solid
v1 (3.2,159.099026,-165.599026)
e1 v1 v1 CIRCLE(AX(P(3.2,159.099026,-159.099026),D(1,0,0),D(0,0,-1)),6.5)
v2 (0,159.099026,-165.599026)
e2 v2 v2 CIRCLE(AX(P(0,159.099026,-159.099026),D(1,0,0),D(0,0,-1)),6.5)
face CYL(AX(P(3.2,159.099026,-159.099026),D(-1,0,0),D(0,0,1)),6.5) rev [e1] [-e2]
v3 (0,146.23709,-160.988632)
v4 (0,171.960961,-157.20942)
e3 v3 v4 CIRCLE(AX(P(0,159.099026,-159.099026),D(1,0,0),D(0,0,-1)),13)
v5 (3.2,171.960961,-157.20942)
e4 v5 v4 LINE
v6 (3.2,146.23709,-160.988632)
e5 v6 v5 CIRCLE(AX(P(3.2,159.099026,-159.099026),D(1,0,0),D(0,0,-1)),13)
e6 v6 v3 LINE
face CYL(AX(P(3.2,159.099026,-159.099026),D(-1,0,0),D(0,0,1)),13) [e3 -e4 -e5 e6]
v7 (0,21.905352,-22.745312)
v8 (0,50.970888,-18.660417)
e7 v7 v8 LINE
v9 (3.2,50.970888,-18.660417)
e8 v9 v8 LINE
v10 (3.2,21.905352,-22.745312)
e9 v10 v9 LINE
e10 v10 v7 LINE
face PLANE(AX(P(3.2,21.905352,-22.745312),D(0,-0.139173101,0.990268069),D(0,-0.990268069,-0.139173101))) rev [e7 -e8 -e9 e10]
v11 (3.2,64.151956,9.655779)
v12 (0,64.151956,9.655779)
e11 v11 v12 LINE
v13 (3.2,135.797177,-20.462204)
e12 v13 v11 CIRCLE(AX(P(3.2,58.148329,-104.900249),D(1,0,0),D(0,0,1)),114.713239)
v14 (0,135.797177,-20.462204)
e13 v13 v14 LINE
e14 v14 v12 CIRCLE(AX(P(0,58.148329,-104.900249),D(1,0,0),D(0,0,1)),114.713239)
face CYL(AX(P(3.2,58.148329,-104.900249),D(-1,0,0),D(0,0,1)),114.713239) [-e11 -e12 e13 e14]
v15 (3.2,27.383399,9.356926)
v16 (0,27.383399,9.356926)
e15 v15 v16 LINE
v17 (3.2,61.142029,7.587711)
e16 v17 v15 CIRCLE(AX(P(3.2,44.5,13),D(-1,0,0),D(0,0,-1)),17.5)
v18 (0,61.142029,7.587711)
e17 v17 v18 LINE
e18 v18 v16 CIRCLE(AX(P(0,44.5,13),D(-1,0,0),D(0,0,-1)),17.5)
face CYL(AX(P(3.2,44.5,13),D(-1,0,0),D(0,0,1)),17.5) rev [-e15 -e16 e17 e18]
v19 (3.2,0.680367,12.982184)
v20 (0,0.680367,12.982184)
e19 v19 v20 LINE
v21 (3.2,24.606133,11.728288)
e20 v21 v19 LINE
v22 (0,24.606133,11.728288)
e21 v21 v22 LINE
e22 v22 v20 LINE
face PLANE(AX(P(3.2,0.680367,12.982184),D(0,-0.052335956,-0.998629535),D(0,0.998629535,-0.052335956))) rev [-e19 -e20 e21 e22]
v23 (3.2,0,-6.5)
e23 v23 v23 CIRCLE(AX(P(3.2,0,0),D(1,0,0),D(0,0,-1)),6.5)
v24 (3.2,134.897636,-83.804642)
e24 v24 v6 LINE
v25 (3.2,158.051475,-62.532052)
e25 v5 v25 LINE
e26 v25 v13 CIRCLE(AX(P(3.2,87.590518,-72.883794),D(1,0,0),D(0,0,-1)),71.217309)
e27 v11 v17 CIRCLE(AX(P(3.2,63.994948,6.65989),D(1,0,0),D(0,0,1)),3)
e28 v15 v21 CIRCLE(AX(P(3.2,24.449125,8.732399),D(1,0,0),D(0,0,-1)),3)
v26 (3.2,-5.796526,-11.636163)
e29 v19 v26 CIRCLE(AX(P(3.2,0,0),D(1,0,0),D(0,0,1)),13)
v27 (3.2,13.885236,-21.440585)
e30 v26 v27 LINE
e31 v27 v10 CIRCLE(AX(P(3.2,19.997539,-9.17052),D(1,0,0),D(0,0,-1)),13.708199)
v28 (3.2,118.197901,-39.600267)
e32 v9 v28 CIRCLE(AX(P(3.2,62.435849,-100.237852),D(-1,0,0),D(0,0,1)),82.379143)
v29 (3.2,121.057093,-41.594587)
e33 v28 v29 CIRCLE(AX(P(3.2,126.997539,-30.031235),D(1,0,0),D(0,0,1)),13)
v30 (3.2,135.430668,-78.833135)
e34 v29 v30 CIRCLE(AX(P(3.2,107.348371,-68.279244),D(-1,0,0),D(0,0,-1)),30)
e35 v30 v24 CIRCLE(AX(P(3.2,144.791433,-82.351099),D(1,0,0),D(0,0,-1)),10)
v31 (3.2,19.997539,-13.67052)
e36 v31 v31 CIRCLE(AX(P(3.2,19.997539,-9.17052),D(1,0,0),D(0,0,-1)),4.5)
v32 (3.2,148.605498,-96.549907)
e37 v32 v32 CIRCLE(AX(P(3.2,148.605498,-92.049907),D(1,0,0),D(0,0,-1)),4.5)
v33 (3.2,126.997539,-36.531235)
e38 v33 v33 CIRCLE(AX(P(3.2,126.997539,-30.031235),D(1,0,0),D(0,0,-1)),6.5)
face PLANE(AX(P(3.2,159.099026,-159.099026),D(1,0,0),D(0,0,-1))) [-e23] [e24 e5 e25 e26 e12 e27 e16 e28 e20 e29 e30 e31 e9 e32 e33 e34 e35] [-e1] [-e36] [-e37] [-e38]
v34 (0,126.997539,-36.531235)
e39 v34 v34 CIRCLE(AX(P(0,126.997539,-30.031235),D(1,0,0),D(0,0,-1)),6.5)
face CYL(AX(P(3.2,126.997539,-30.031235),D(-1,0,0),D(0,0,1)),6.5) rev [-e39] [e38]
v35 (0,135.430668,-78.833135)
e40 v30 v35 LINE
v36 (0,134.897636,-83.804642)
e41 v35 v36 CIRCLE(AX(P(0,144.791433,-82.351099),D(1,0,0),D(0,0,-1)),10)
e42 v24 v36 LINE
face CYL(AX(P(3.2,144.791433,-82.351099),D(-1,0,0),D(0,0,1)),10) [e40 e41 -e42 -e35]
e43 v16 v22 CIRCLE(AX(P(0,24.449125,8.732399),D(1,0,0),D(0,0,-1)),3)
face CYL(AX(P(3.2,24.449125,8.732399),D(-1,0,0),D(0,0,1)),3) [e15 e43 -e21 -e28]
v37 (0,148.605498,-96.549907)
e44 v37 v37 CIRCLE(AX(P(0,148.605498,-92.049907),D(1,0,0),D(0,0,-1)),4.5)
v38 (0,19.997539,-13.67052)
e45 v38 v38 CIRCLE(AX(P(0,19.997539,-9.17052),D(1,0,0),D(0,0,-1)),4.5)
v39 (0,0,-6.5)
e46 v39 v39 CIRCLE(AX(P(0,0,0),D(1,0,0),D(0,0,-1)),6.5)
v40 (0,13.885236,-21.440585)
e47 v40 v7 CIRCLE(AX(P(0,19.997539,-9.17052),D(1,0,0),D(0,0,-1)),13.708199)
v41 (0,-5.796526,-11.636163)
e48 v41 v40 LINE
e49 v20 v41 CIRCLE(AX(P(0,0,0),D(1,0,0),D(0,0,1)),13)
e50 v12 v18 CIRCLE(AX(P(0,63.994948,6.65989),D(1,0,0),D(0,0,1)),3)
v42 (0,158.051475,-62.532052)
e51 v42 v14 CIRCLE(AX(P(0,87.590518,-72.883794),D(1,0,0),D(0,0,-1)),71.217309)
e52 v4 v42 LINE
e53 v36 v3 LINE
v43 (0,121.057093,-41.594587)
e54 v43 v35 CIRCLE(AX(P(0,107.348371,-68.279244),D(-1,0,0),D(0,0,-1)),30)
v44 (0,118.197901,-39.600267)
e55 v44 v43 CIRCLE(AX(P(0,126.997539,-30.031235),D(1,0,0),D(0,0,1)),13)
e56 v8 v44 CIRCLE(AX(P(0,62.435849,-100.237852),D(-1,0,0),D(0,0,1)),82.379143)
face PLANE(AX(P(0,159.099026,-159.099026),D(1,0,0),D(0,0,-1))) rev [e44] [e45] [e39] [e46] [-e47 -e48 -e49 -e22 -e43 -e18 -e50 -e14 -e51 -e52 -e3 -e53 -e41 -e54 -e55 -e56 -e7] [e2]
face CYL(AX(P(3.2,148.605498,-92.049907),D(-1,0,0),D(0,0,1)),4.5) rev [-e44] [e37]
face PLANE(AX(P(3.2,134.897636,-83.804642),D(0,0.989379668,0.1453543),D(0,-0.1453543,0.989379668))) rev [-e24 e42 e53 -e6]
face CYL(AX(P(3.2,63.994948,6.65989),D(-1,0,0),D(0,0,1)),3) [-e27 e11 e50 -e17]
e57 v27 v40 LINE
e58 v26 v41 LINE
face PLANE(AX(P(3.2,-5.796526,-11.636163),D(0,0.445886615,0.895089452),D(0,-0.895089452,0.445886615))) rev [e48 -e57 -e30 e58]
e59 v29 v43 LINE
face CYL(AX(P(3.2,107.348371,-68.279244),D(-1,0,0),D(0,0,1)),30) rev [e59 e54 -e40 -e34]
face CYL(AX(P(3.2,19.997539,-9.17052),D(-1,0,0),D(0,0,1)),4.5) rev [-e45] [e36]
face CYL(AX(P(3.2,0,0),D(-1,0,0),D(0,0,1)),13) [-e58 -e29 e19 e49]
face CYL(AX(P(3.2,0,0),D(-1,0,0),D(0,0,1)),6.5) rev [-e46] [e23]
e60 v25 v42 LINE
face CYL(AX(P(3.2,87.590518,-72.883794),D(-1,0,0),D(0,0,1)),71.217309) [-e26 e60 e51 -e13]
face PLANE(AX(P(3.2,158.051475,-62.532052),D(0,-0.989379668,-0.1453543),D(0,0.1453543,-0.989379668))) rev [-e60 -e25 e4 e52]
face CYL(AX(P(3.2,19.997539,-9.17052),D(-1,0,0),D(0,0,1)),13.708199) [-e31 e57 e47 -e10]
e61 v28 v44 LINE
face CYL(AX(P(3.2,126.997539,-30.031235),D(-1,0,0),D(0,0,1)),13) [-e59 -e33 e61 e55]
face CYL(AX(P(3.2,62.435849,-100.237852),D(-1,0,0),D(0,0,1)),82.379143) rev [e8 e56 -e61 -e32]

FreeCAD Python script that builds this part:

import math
import FreeCAD as App
import Part
import Sketcher
from FreeCAD import Vector
Q = App.Units.Quantity

doc = App.newDocument("Part")
body = doc.addObject("PartDesign::Body", "Body")

# Sketch on YZ plane
sketch1 = body.newObject("Sketcher::SketchObject", "Sketch")
sketch1.AttachmentSupport = (doc.getObject("YZ_Plane"), [""])
sketch1.MapMode = "FlatFace"
sketch1.addGeometry(Part.LineSegment(Vector(172, -157.2, 0), Vector(158.1, -62.5, 0)), False)
sketch1.addGeometry(Part.ArcOfCircle(Part.Circle(Vector(87.6, -72.9, 0), Vector(0, 0, 1), 71.2), math.radians(8), math.radians(47)), False)
sketch1.addGeometry(Part.ArcOfCircle(Part.Circle(Vector(58.1, -104.9, 0), Vector(0, 0, 1), 114.7), math.radians(47), math.radians(87)), False)
sketch1.addGeometry(Part.ArcOfCircle(Part.Circle(Vector(64, 6.7, 0), Vector(0, 0, 1), 3), math.radians(87), math.radians(162)), False)
sketch1.addGeometry(Part.ArcOfCircle(Part.Circle(Vector(44.5, 13, 0), Vector(0, 0, 1), 17.5), math.radians(-168), math.radians(-18)), False)
sketch1.addGeometry(Part.ArcOfCircle(Part.Circle(Vector(24.4, 8.7, 0), Vector(0, 0, 1), 3), math.radians(12), math.radians(87)), False)
sketch1.addGeometry(Part.LineSegment(Vector(24.6, 11.7, 0), Vector(0.7, 13, 0)), False)
sketch1.addGeometry(Part.ArcOfCircle(Part.Circle(Vector(0, 0, 0), Vector(0, 0, 1), 13), math.radians(87), math.radians(244)), False)
sketch1.addGeometry(Part.LineSegment(Vector(-5.8, -11.6, 0), Vector(13.9, -21.4, 0)), False)
sketch1.addGeometry(Part.ArcOfCircle(Part.Circle(Vector(20, -9.2, 0), Vector(0, 0, 1), 13.7), math.radians(-116), math.radians(-82)), False)
sketch1.addGeometry(Part.LineSegment(Vector(21.9, -22.7, 0), Vector(51, -18.7, 0)), False)
sketch1.addGeometry(Part.ArcOfCircle(Part.Circle(Vector(62.4, -100.2, 0), Vector(0, 0, 1), 82.4), math.radians(47), math.radians(98)), False)
sketch1.addGeometry(Part.ArcOfCircle(Part.Circle(Vector(127, -30, 0), Vector(0, 0, 1), 13), math.radians(-132.6), math.radians(-117.19)), False)
sketch1.addGeometry(Part.ArcOfCircle(Part.Circle(Vector(107.3, -68.3, 0), Vector(0, 0, 1), 30), math.radians(-21), math.radians(63)), False)
sketch1.addGeometry(Part.ArcOfCircle(Part.Circle(Vector(144.8, -82.4, 0), Vector(0, 0, 1), 10), math.radians(159), math.radians(188)), False)
sketch1.addGeometry(Part.LineSegment(Vector(134.9, -83.8, 0), Vector(146.2, -161, 0)), False)
sketch1.addGeometry(Part.ArcOfCircle(Part.Circle(Vector(159.1, -159.1, 0), Vector(0, 0, 1), 13), math.radians(-172), math.radians(8)), False)
sketch1.addConstraint(Sketcher.Constraint("Tangent", 0, 2, 1, 1))
sketch1.addConstraint(Sketcher.Constraint("Tangent", 1, 2, 2, 1))
sketch1.addConstraint(Sketcher.Constraint("Tangent", 2, 2, 3, 1))
sketch1.addConstraint(Sketcher.Constraint("Tangent", 3, 2, 4, 2))
sketch1.addConstraint(Sketcher.Constraint("Tangent", 4, 1, 5, 1))
sketch1.addConstraint(Sketcher.Constraint("Tangent", 5, 2, 6, 1))
sketch1.addConstraint(Sketcher.Constraint("Tangent", 6, 2, 7, 1))
sketch1.addConstraint(Sketcher.Constraint("Tangent", 7, 2, 8, 1))
sketch1.addConstraint(Sketcher.Constraint("Tangent", 8, 2, 9, 1))
sketch1.addConstraint(Sketcher.Constraint("Tangent", 9, 2, 10, 1))
sketch1.addConstraint(Sketcher.Constraint("Tangent", 10, 2, 11, 2))
sketch1.addConstraint(Sketcher.Constraint("Tangent", 11, 1, 12, 1))
sketch1.addConstraint(Sketcher.Constraint("Tangent", 12, 2, 13, 2))
sketch1.addConstraint(Sketcher.Constraint("Tangent", 13, 1, 14, 1))
sketch1.addConstraint(Sketcher.Constraint("Tangent", 14, 2, 15, 1))
sketch1.addConstraint(Sketcher.Constraint("Tangent", 15, 2, 16, 1))
sketch1.addConstraint(Sketcher.Constraint("Tangent", 16, 2, 0, 1))
sketch1.addConstraint(Sketcher.Constraint("Coincident", 7, 3, -1, 1))
sketch1.addConstraint(Sketcher.Constraint("Equal", 3, 5))
sketch1.addConstraint(Sketcher.Constraint("Equal", 7, 12))
sketch1.addConstraint(Sketcher.Constraint("Equal", 12, 16))
sketch1.addConstraint(Sketcher.Constraint("Parallel", 0, 15))
sketch1.addConstraint(Sketcher.Constraint("Radius", 3, Q("3 mm")))
sketch1.addConstraint(Sketcher.Constraint("Radius", 7, Q("13 mm")))
sketch1.addConstraint(Sketcher.Constraint("Radius", 13, Q("30 mm")))
sketch1.addConstraint(Sketcher.Constraint("Radius", 14, Q("10 mm")))
sketch1.addConstraint(Sketcher.Constraint("Radius", 4, Q("17.5 mm")))
sketch1.addConstraint(Sketcher.Constraint("Angle", 6, Q("177 deg")))
sketch1.addConstraint(Sketcher.Constraint("Angle", 10, Q("8 deg")))
sketch1.addConstraint(Sketcher.Constraint("DistanceY", -1, 1, 4, 3, Q("13 mm")))
sketch1.addConstraint(Sketcher.Constraint("DistanceX", -1, 1, 4, 3, Q("44.5 mm")))
sketch1.addConstraint(Sketcher.Constraint("Radius", 9, Q("13.708199 mm")))
sketch1.addConstraint(Sketcher.Constraint("Radius", 1, Q("71.217309 mm")))
sketch1.addConstraint(Sketcher.Constraint("Radius", 2, Q("114.713239 mm")))
sketch1.addConstraint(Sketcher.Constraint("Radius", 11, Q("82.379143 mm")))
sketch1.addConstraint(Sketcher.Constraint("Distance", 8, Q("21.988598 mm")))
sketch1.addConstraint(Sketcher.Constraint("DistanceY", 14, 3, -1, 1, Q("82.351099 mm")))
sketch1.addConstraint(Sketcher.Constraint("DistanceX", -1, 1, 11, 1, Q("118.197901 mm")))
sketch1.addConstraint(Sketcher.Constraint("DistanceX", 11, 3, 3, 3, Q("1.559099 mm")))
sketch1.addConstraint(Sketcher.Constraint("DistanceX", 1, 2, 0, 2, Q("22.254298 mm")))
sketch1.addConstraint(Sketcher.Constraint("DistanceY", 9, 3, 2, 2, Q("18.826299 mm")))
sketch1.addConstraint(Sketcher.Constraint("Distance", 10, Q("29.35118 mm")))
sketch1.addConstraint(Sketcher.Constraint("Distance", 15, Q("78.012509 mm")))
sketch1.addConstraint(Sketcher.Constraint("DistanceX", -1, 1, 1, 3, Q("87.590518 mm")))
sketch1.addConstraint(Sketcher.Constraint("DistanceX", -1, 1, 2, 3, Q("58.148329 mm")))
pad1 = body.newObject("PartDesign::Pad", "Pad")
pad1.Profile = sketch1
pad1.Length = 3.2

# Sketch on YZ plane
sketch2 = body.newObject("Sketcher::SketchObject", "Sketch001")
sketch2.AttachmentSupport = (doc.getObject("YZ_Plane"), [""])
sketch2.MapMode = "FlatFace"
sketch2.addGeometry(Part.Circle(Vector(0, 0, 0), Vector(0, 0, 1), 6), False)
sketch2.addGeometry(Part.Circle(Vector(159, -159, 0), Vector(0, 0, 1), 6), False)
sketch2.addGeometry(Part.Circle(Vector(127, -30, 0), Vector(0, 0, 1), 6), False)
sketch2.addConstraint(Sketcher.Constraint("Coincident", 0, 3, -1, 1))
sketch2.addConstraint(Sketcher.Constraint("Equal", 0, 1))
sketch2.addConstraint(Sketcher.Constraint("Equal", 1, 2))
sketch2.addConstraint(Sketcher.Constraint("Diameter", 0, Q("13 mm")))
sketch2.addConstraint(Sketcher.Constraint("DistanceX", -1, 1, 2, 3, Q("126.997539 mm")))
sketch2.addConstraint(Sketcher.Constraint("DistanceY", 1, 3, 2, 3, Q("129.067791 mm")))
sketch2.addConstraint(Sketcher.Constraint("DistanceX", -1, 1, 1, 3, Q("159.099026 mm")))
sketch2.addConstraint(Sketcher.Constraint("DistanceY", 1, 3, -1, 1, Q("159.099026 mm")))
pocket1 = body.newObject("PartDesign::Pocket", "Pocket")
pocket1.Profile = sketch2
pocket1.Type = "ThroughAll"
pocket1.Reversed = True

# Sketch on YZ plane
sketch3 = body.newObject("Sketcher::SketchObject", "Sketch002")
sketch3.AttachmentSupport = (doc.getObject("YZ_Plane"), [""])
sketch3.MapMode = "FlatFace"
sketch3.addGeometry(Part.Circle(Vector(20, -9.2, 0), Vector(0, 0, 1), 4.5), False)
sketch3.addGeometry(Part.Circle(Vector(148.6, -92, 0), Vector(0, 0, 1), 4.5), False)
sketch3.addConstraint(Sketcher.Constraint("Equal", 0, 1))
sketch3.addConstraint(Sketcher.Constraint("Diameter", 0, Q("9 mm")))
sketch3.addConstraint(Sketcher.Constraint("DistanceX", -1, 1, 1, 3, Q("148.605498 mm")))
sketch3.addConstraint(Sketcher.Constraint("DistanceX", -1, 1, 0, 3, Q("19.997539 mm")))
sketch3.addConstraint(Sketcher.Constraint("DistanceY", 0, 3, -1, 1, Q("9.17052 mm")))
sketch3.addConstraint(Sketcher.Constraint("DistanceY", 1, 3, -1, 1, Q("92.049907 mm")))
pocket2 = body.newObject("PartDesign::Pocket", "Pocket001")
pocket2.Profile = sketch3
pocket2.Type = "ThroughAll"
pocket2.Reversed = True

doc.recompute()
